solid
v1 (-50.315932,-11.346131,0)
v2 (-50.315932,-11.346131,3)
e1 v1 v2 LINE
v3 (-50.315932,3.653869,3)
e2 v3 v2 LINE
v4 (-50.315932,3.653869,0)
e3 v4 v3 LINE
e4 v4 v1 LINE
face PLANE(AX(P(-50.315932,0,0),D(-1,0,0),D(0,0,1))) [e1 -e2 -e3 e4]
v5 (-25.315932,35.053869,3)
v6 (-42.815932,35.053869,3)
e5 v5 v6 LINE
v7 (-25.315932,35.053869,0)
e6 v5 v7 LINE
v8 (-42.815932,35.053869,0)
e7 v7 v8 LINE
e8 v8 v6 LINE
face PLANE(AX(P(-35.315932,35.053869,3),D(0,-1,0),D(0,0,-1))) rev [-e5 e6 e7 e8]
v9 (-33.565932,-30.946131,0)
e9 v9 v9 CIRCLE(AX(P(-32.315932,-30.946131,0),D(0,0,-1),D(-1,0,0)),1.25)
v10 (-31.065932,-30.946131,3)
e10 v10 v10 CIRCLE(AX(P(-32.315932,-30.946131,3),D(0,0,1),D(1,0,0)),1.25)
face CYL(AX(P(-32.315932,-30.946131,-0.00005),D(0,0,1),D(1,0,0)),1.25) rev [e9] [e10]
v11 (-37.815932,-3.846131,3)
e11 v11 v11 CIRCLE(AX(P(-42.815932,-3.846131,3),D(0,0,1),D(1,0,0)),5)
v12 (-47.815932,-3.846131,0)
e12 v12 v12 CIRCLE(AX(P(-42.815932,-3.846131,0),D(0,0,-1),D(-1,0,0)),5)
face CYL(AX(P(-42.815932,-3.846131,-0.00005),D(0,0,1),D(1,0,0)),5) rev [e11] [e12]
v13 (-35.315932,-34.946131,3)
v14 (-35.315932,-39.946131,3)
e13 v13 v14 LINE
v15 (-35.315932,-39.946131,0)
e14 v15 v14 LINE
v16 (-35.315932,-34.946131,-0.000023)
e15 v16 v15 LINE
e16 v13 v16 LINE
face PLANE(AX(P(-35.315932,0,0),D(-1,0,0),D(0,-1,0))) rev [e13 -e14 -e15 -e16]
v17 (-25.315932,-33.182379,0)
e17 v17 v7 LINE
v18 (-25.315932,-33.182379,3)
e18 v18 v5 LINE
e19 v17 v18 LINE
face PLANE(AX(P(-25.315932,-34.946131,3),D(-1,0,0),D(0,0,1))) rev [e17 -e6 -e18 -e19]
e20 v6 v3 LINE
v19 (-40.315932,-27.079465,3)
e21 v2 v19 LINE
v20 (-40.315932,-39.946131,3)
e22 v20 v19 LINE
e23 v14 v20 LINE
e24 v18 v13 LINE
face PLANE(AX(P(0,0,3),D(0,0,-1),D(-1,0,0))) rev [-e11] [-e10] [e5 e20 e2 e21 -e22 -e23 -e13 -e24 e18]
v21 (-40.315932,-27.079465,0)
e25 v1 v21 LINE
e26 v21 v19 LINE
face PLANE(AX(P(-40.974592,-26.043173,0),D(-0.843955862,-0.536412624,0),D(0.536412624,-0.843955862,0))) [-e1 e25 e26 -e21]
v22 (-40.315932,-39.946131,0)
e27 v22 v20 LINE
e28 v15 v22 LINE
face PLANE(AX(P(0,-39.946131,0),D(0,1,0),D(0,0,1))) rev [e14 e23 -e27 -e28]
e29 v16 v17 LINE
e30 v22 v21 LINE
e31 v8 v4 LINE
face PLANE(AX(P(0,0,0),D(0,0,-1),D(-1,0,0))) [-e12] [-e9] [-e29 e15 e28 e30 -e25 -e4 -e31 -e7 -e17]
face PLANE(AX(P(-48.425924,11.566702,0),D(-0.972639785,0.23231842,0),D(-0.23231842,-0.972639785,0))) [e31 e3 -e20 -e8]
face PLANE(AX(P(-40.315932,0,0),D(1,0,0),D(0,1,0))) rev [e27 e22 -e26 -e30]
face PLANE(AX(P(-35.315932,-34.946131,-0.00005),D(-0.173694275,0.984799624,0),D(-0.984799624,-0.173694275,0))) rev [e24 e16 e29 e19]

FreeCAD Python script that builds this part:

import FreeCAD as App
import Part
import Sketcher

V = App.Vector


def add_polygon(sketch, points):
    """Adds a closed chain of lines whose ends are joined by coincident constraints."""
    first, n = sketch.GeometryCount, len(points)
    for a, b in zip(points, points[1:] + points[:1]):
        sketch.addGeometry(Part.LineSegment(App.Vector(*a, 0), App.Vector(*b, 0)), False)
    for i in range(n):
        sketch.addConstraint(Sketcher.Constraint("Coincident", first + i, 2, first + (i + 1) % n, 1))

doc = App.newDocument("Part")
body = doc.addObject("PartDesign::Body", "Body")

# Sketch on XY plane
sketch1 = doc.addObject("Sketcher::SketchObject", "Sketch")
body.addObject(sketch1)
sketch1.AttachmentSupport = (doc.XY_Plane, [""])
sketch1.MapMode = "FlatFace"
add_polygon(sketch1, [(-35, 35), (-35, -35), (-25, -35), (-25, 35)])  # lines 0-3
sketch1.addConstraint([
    Sketcher.Constraint("Vertical", 0),
    Sketcher.Constraint("Horizontal", 1),
    Sketcher.Constraint("Vertical", 2),
    Sketcher.Constraint("Horizontal", 3),
    Sketcher.Constraint("DistanceX", 1, 1, 1, 2, 10.0),
    Sketcher.Constraint("DistanceY", 0, 2, 0, 1, 70.0),
    Sketcher.Constraint("DistanceX", 0, 2, -1, 1, 35.315932),
    Sketcher.Constraint("DistanceY", 0, 2, -1, 1, 34.946131),
])
pad1 = doc.addObject("PartDesign::Pad", "Pad")
body.addObject(pad1)
pad1.Profile = sketch1
pad1.Length = 3

# Sketch on XY plane
sketch2 = doc.addObject("Sketcher::SketchObject", "Sketch001")
body.addObject(sketch2)
sketch2.AttachmentSupport = (doc.XY_Plane, [""])
sketch2.MapMode = "FlatFace"
sketch2.AttachmentOffset = App.Placement(V(0, 0, 3), App.Rotation())
add_polygon(sketch2, [(-40, -27), (-40, -40), (-35, -40), (-35, 35), (-43, 35), (-50, 4), (-50, -11)])  # lines 0-6
sketch2.addConstraint([
    Sketcher.Constraint("Vertical", 0),
    Sketcher.Constraint("Horizontal", 1),
    Sketcher.Constraint("Vertical", 2),
    Sketcher.Constraint("Horizontal", 3),
    Sketcher.Constraint("Vertical", 5),
    Sketcher.Constraint("DistanceX", 1, 1, 1, 2, 5.0),
    Sketcher.Constraint("DistanceY", 2, 1, 2, 2, 75.0),
    Sketcher.Constraint("DistanceY", 5, 2, 5, 1, 15.0),
    Sketcher.Constraint("DistanceX", 3, 2, 3, 1, 7.5),
    Sketcher.Constraint("DistanceX", 4, 2, 2, 2, 15.0),
    Sketcher.Constraint("DistanceY", 4, 2, 3, 2, 31.4),
    Sketcher.Constraint("DistanceY", 0, 2, 0, 1, 12.866667),
    Sketcher.Constraint("DistanceX", 0, 2, -1, 1, 40.315932),
    Sketcher.Constraint("DistanceY", 0, 2, -1, 1, 39.946131),
])
pad2 = doc.addObject("PartDesign::Pad", "Pad001")
body.addObject(pad2)
pad2.Profile = sketch2
pad2.Length = 3
pad2.Reversed = True

# Sketch on XY plane
sketch3 = doc.addObject("Sketcher::SketchObject", "Sketch002")
body.addObject(sketch3)
sketch3.AttachmentSupport = (doc.XY_Plane, [""])
sketch3.MapMode = "FlatFace"
sketch3.AttachmentOffset = App.Placement(V(0, 0, 3), App.Rotation())
sketch3.addGeometry(Part.Circle(V(-42.8, -3.8, 0), V(0, 0, 1), 5), False)  # 0
sketch3.addGeometry(Part.Circle(V(-32.3, -30.9, 0), V(0, 0, 1), 1.2), False)  # 1
add_polygon(sketch3, [(-25.3, -33.2), (-35.3, -34.9), (-25.3, -34.9)])  # lines 2-4
sketch3.addConstraint([
    Sketcher.Constraint("Horizontal", 3),
    Sketcher.Constraint("Vertical", 4),
    Sketcher.Constraint("Diameter", 0, 10.0),
    Sketcher.Constraint("Diameter", 1, 2.5),
    Sketcher.Constraint("DistanceX", 3, 1, 3, 2, 10.0),
    Sketcher.Constraint("DistanceX", 2, 2, 1, 3, 3.0),
    Sketcher.Constraint("DistanceY", 2, 2, 1, 3, 4.0),
    Sketcher.Constraint("DistanceX", 0, 3, 1, 3, 10.5),
    Sketcher.Constraint("DistanceY", 1, 3, 0, 3, 27.1),
    Sketcher.Constraint("Distance", 2, 10.15435),
    Sketcher.Constraint("DistanceX", 0, 3, -1, 1, 42.815932),
    Sketcher.Constraint("DistanceY", 0, 3, -1, 1, 3.846131),
])
pocket1 = doc.addObject("PartDesign::Pocket", "Pocket")
body.addObject(pocket1)
pocket1.Profile = sketch3
pocket1.Type = "ThroughAll"

doc.recompute()
